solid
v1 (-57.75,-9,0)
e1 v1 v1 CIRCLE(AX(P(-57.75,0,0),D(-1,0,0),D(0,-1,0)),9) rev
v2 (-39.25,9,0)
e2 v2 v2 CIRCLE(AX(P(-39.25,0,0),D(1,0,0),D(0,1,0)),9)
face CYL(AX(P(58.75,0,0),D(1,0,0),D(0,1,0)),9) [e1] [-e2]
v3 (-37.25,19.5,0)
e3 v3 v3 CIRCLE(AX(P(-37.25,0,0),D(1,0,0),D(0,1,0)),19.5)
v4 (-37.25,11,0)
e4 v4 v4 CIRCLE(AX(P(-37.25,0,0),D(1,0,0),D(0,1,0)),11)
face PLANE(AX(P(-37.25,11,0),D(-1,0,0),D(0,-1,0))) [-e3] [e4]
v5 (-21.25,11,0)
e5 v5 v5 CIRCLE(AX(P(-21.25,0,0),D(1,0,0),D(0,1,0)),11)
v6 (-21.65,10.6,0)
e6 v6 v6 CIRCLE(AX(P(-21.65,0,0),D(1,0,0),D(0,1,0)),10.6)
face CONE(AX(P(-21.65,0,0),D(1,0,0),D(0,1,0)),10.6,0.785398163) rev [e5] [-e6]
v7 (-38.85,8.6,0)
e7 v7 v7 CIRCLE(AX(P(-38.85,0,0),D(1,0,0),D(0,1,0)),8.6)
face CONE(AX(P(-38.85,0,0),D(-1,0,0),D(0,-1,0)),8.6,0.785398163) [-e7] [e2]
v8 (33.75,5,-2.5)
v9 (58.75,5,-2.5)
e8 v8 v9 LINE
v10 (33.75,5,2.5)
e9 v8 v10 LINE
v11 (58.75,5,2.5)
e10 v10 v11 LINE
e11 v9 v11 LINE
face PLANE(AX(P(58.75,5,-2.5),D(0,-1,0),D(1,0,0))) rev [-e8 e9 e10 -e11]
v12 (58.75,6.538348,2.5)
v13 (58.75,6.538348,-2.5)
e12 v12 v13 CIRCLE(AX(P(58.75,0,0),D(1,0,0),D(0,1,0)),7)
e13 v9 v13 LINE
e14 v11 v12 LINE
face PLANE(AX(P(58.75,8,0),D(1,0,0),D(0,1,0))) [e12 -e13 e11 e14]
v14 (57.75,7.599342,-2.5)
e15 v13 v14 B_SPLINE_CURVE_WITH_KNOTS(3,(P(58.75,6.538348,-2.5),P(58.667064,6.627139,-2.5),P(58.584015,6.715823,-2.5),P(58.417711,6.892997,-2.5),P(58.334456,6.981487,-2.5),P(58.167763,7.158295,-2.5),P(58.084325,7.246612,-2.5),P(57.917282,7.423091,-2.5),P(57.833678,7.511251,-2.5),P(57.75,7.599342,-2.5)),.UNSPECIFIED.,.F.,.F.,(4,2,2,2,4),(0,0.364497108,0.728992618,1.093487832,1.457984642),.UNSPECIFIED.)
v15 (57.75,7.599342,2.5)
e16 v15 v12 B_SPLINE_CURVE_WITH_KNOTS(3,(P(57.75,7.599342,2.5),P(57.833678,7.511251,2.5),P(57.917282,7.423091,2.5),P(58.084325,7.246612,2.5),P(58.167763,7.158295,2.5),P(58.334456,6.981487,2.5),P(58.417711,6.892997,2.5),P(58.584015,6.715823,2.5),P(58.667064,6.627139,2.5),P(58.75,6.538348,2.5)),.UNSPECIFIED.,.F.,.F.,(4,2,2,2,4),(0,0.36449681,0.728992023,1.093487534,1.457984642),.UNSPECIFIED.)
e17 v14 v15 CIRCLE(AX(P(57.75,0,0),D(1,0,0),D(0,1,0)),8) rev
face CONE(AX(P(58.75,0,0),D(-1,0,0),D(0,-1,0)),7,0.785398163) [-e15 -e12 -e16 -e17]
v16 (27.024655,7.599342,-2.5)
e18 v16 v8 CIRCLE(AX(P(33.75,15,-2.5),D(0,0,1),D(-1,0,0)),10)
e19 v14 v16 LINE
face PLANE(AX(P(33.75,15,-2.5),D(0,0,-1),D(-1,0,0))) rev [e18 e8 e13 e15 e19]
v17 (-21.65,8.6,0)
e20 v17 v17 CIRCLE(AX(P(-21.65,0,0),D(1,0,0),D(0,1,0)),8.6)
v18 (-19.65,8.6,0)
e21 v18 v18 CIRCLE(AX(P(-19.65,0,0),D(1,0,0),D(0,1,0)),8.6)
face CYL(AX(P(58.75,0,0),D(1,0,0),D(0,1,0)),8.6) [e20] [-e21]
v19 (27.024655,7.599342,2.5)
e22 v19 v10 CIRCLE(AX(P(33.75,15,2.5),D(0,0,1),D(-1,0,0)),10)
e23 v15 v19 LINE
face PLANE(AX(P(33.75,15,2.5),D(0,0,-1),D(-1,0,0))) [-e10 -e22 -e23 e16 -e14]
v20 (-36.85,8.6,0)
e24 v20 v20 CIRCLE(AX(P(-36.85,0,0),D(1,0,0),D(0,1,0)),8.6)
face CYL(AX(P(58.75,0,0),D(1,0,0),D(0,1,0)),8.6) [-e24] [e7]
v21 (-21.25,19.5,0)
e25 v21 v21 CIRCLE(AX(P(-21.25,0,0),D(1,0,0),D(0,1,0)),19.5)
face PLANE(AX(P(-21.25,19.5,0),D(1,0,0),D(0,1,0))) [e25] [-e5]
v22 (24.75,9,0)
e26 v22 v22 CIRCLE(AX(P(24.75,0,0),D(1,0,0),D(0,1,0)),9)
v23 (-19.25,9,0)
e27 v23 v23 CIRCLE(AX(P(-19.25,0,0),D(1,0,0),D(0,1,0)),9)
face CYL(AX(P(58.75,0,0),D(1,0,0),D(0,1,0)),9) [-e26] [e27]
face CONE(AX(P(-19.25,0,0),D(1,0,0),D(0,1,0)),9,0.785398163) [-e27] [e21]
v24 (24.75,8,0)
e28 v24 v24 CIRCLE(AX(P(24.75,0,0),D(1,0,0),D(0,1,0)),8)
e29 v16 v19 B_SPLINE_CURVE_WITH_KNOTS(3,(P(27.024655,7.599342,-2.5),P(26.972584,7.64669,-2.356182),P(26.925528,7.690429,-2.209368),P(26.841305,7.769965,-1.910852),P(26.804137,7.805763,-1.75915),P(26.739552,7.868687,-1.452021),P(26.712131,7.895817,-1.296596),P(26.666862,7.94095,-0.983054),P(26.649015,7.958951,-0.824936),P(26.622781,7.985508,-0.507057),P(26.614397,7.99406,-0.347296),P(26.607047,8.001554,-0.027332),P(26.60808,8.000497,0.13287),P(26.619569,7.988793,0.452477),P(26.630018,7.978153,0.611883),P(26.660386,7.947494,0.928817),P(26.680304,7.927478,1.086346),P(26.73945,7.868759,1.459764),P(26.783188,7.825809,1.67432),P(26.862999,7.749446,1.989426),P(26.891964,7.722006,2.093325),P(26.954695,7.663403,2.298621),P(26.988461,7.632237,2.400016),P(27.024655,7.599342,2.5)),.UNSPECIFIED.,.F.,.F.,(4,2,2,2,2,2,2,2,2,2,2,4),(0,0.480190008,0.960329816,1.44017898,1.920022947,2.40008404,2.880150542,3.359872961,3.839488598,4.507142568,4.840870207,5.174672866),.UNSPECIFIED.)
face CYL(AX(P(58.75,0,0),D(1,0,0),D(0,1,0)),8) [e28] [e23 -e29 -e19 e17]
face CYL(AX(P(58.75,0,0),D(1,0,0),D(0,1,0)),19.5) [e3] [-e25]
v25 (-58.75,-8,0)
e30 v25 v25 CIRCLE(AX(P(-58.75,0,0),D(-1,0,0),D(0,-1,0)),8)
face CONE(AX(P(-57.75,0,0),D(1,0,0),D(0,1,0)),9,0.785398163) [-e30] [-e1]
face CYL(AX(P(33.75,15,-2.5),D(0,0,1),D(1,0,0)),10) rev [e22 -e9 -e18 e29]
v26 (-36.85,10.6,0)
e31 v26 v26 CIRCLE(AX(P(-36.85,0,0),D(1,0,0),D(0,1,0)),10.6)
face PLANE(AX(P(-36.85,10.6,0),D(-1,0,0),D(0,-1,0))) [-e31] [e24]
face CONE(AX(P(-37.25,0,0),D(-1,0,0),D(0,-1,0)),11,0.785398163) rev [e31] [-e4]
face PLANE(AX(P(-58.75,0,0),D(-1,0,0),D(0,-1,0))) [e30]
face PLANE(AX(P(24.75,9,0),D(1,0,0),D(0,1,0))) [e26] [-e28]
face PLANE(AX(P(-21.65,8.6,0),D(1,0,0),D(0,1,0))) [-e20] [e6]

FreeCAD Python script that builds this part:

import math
import FreeCAD as App
import Part
import Sketcher

V = App.Vector
Q = App.Units.Quantity


def edges_at(feature, points):
    """Names of the edges that pass closest to the given points."""
    edges = feature.Shape.Edges
    near = lambda p: min(range(len(edges)), key=lambda i: edges[i].distToShape(Part.Vertex(*p))[0])
    return sorted({f"Edge{near(p) + 1}" for p in points})

doc = App.newDocument("Part")
body = doc.addObject("PartDesign::Body", "Body")

# Sketch on XY plane
sketch1 = body.newObject("Sketcher::SketchObject", "Sketch")
sketch1.AttachmentSupport = (doc.getObject("XY_Plane"), [""])
sketch1.MapMode = "FlatFace"
sketch1.addGeometry([
    Part.LineSegment(V(-58.8, 9, 0), V(-58.8, 0, 0)),  # 0
    Part.LineSegment(V(-58.8, 0, 0), V(58.8, 0, 0)),  # 1
    Part.LineSegment(V(58.8, 0, 0), V(58.8, 8, 0)),  # 2
    Part.LineSegment(V(58.8, 8, 0), V(24.8, 8, 0)),  # 3
    Part.LineSegment(V(24.8, 8, 0), V(24.8, 9, 0)),  # 4
    Part.LineSegment(V(24.8, 9, 0), V(-19.2, 9, 0)),  # 5
    Part.LineSegment(V(-19.2, 9, 0), V(-19.6, 8.6, 0)),  # 6
    Part.LineSegment(V(-19.6, 8.6, 0), V(-21.6, 8.6, 0)),  # 7
    Part.LineSegment(V(-21.6, 8.6, 0), V(-21.6, 10.6, 0)),  # 8
    Part.LineSegment(V(-21.6, 10.6, 0), V(-21.2, 11, 0)),  # 9
    Part.LineSegment(V(-21.2, 11, 0), V(-21.2, 19.5, 0)),  # 10
    Part.LineSegment(V(-21.2, 19.5, 0), V(-37.2, 19.5, 0)),  # 11
    Part.LineSegment(V(-37.2, 19.5, 0), V(-37.2, 11, 0)),  # 12
    Part.LineSegment(V(-37.2, 11, 0), V(-36.9, 10.6, 0)),  # 13
    Part.LineSegment(V(-36.9, 10.6, 0), V(-36.9, 8.6, 0)),  # 14
    Part.LineSegment(V(-36.9, 8.6, 0), V(-38.9, 8.6, 0)),  # 15
    Part.LineSegment(V(-38.9, 8.6, 0), V(-39.2, 9, 0)),  # 16
    Part.LineSegment(V(-39.2, 9, 0), V(-58.8, 9, 0)),  # 17
], False)
sketch1.addConstraint([
    Sketcher.Constraint("Coincident", 0, 2, 1, 1),
    Sketcher.Constraint("Coincident", 1, 2, 2, 1),
    Sketcher.Constraint("Coincident", 2, 2, 3, 1),
    Sketcher.Constraint("Coincident", 3, 2, 4, 1),
    Sketcher.Constraint("Coincident", 4, 2, 5, 1),
    Sketcher.Constraint("Coincident", 5, 2, 6, 1),
    Sketcher.Constraint("Coincident", 6, 2, 7, 1),
    Sketcher.Constraint("Coincident", 7, 2, 8, 1),
    Sketcher.Constraint("Coincident", 8, 2, 9, 1),
    Sketcher.Constraint("Coincident", 9, 2, 10, 1),
    Sketcher.Constraint("Coincident", 10, 2, 11, 1),
    Sketcher.Constraint("Coincident", 11, 2, 12, 1),
    Sketcher.Constraint("Coincident", 12, 2, 13, 1),
    Sketcher.Constraint("Coincident", 13, 2, 14, 1),
    Sketcher.Constraint("Coincident", 14, 2, 15, 1),
    Sketcher.Constraint("Coincident", 15, 2, 16, 1),
    Sketcher.Constraint("Coincident", 16, 2, 17, 1),
    Sketcher.Constraint("Coincident", 17, 2, 0, 1),
    Sketcher.Constraint("Vertical", 0),
    Sketcher.Constraint("Horizontal", 1),
    Sketcher.Constraint("Vertical", 2),
    Sketcher.Constraint("Horizontal", 3),
    Sketcher.Constraint("Vertical", 4),
    Sketcher.Constraint("Horizontal", 5),
    Sketcher.Constraint("Horizontal", 7),
    Sketcher.Constraint("Vertical", 8),
    Sketcher.Constraint("Vertical", 10),
    Sketcher.Constraint("Horizontal", 11),
    Sketcher.Constraint("Vertical", 12),
    Sketcher.Constraint("Vertical", 14),
    Sketcher.Constraint("Horizontal", 15),
    Sketcher.Constraint("Horizontal", 17),
    Sketcher.Constraint("Symmetric", 0, 2, 1, 2, -1, 1),
    Sketcher.Constraint("Parallel", 6, 9),
    Sketcher.Constraint("Perpendicular", 9, 13),
    Sketcher.Constraint("Parallel", 13, 16),
    Sketcher.Constraint("Horizontal", 9, 2, 12, 2),
    Sketcher.Constraint("Horizontal", 8, 2, 13, 2),
    Sketcher.Constraint("Horizontal", 7, 2, 14, 2),
    Sketcher.Constraint("Horizontal", 5, 2, 16, 2),
    Sketcher.Constraint("Equal", 7, 15),
    Sketcher.Constraint("Equal", 15, 8),
    Sketcher.Constraint("Equal", 6, 9),
    Sketcher.Constraint("Equal", 9, 13),
    Sketcher.Constraint("DistanceX", 3, 2, 3, 1, Q("34 mm")),
    Sketcher.Constraint("DistanceX", 5, 2, 5, 1, Q("44 mm")),
    Sketcher.Constraint("DistanceX", 7, 2, 7, 1, Q("2 mm")),
    Sketcher.Constraint("DistanceX", 11, 2, 11, 1, Q("16 mm")),
    Sketcher.Constraint("DistanceY", 0, 2, 0, 1, Q("9 mm")),
    Sketcher.Constraint("DistanceY", 2, 1, 2, 2, Q("8 mm")),
    Sketcher.Constraint("DistanceX", 1, 1, 1, 2, Q("117.5 mm")),
    Sketcher.Constraint("DistanceY", 10, 1, 10, 2, Q("8.5 mm")),
    Sketcher.Constraint("DistanceY", -1, 1, 6, 2, Q("8.6 mm")),
])
revolution = body.newObject("PartDesign::Revolution", "Revolution")
revolution.Profile = sketch1
revolution.ReferenceAxis = (sketch1, ["H_Axis"])
revolution.Angle = 360
doc.recompute()

chamfer = body.newObject("PartDesign::Chamfer", "Chamfer")
chamfer.Base = (revolution, edges_at(revolution, [(-58.75, -9, 0)]))
chamfer.Size = 1

# Sketch on XY plane
sketch2 = body.newObject("Sketcher::SketchObject", "Sketch001")
sketch2.AttachmentSupport = (doc.getObject("XY_Plane"), [""])
sketch2.MapMode = "FlatFace"
sketch2.addGeometry([
    Part.LineSegment(V(34, 5, 0), V(59, 5, 0)),  # 0
    Part.LineSegment(V(59, 5, 0), V(59, 13, 0)),  # 1
    Part.LineSegment(V(59, 13, 0), V(27, 13, 0)),  # 2
    Part.LineSegment(V(27, 13, 0), V(27, 8, 0)),  # 3
    Part.ArcOfCircle(Part.Circle(V(34, 15, 0), V(0, 0, 1), 10), math.radians(-136), math.radians(-90)),  # 4
], False)
sketch2.addConstraint([
    Sketcher.Constraint("Coincident", 0, 2, 1, 1),
    Sketcher.Constraint("Coincident", 1, 2, 2, 1),
    Sketcher.Constraint("Coincident", 2, 2, 3, 1),
    Sketcher.Constraint("Coincident", 3, 2, 4, 1),
    Sketcher.Constraint("Tangent", 4, 2, 0, 1),
    Sketcher.Constraint("Horizontal", 0),
    Sketcher.Constraint("Vertical", 1),
    Sketcher.Constraint("Horizontal", 2),
    Sketcher.Constraint("Vertical", 3),
    Sketcher.Constraint("Radius", 4, Q("10 mm")),
    Sketcher.Constraint("DistanceX", 0, 1, 0, 2, Q("25 mm")),
    Sketcher.Constraint("DistanceY", 1, 1, 1, 2, Q("8 mm")),
    Sketcher.Constraint("DistanceY", 3, 2, 3, 1, Q("5 mm")),
    Sketcher.Constraint("DistanceY", -1, 1, 4, 3, Q("15 mm")),
    Sketcher.Constraint("DistanceX", -1, 1, 4, 3, Q("33.75 mm")),
])
pocket1 = body.newObject("PartDesign::Pocket", "Pocket")
pocket1.Profile = sketch2
pocket1.Length = 5
pocket1.Midplane = True
doc.recompute()

chamfer2 = body.newObject("PartDesign::Chamfer", "Chamfer001")
chamfer2.Base = (pocket1, edges_at(pocket1, [(58.75, -8, 0)]))
chamfer2.Size = 1

doc.recompute()
